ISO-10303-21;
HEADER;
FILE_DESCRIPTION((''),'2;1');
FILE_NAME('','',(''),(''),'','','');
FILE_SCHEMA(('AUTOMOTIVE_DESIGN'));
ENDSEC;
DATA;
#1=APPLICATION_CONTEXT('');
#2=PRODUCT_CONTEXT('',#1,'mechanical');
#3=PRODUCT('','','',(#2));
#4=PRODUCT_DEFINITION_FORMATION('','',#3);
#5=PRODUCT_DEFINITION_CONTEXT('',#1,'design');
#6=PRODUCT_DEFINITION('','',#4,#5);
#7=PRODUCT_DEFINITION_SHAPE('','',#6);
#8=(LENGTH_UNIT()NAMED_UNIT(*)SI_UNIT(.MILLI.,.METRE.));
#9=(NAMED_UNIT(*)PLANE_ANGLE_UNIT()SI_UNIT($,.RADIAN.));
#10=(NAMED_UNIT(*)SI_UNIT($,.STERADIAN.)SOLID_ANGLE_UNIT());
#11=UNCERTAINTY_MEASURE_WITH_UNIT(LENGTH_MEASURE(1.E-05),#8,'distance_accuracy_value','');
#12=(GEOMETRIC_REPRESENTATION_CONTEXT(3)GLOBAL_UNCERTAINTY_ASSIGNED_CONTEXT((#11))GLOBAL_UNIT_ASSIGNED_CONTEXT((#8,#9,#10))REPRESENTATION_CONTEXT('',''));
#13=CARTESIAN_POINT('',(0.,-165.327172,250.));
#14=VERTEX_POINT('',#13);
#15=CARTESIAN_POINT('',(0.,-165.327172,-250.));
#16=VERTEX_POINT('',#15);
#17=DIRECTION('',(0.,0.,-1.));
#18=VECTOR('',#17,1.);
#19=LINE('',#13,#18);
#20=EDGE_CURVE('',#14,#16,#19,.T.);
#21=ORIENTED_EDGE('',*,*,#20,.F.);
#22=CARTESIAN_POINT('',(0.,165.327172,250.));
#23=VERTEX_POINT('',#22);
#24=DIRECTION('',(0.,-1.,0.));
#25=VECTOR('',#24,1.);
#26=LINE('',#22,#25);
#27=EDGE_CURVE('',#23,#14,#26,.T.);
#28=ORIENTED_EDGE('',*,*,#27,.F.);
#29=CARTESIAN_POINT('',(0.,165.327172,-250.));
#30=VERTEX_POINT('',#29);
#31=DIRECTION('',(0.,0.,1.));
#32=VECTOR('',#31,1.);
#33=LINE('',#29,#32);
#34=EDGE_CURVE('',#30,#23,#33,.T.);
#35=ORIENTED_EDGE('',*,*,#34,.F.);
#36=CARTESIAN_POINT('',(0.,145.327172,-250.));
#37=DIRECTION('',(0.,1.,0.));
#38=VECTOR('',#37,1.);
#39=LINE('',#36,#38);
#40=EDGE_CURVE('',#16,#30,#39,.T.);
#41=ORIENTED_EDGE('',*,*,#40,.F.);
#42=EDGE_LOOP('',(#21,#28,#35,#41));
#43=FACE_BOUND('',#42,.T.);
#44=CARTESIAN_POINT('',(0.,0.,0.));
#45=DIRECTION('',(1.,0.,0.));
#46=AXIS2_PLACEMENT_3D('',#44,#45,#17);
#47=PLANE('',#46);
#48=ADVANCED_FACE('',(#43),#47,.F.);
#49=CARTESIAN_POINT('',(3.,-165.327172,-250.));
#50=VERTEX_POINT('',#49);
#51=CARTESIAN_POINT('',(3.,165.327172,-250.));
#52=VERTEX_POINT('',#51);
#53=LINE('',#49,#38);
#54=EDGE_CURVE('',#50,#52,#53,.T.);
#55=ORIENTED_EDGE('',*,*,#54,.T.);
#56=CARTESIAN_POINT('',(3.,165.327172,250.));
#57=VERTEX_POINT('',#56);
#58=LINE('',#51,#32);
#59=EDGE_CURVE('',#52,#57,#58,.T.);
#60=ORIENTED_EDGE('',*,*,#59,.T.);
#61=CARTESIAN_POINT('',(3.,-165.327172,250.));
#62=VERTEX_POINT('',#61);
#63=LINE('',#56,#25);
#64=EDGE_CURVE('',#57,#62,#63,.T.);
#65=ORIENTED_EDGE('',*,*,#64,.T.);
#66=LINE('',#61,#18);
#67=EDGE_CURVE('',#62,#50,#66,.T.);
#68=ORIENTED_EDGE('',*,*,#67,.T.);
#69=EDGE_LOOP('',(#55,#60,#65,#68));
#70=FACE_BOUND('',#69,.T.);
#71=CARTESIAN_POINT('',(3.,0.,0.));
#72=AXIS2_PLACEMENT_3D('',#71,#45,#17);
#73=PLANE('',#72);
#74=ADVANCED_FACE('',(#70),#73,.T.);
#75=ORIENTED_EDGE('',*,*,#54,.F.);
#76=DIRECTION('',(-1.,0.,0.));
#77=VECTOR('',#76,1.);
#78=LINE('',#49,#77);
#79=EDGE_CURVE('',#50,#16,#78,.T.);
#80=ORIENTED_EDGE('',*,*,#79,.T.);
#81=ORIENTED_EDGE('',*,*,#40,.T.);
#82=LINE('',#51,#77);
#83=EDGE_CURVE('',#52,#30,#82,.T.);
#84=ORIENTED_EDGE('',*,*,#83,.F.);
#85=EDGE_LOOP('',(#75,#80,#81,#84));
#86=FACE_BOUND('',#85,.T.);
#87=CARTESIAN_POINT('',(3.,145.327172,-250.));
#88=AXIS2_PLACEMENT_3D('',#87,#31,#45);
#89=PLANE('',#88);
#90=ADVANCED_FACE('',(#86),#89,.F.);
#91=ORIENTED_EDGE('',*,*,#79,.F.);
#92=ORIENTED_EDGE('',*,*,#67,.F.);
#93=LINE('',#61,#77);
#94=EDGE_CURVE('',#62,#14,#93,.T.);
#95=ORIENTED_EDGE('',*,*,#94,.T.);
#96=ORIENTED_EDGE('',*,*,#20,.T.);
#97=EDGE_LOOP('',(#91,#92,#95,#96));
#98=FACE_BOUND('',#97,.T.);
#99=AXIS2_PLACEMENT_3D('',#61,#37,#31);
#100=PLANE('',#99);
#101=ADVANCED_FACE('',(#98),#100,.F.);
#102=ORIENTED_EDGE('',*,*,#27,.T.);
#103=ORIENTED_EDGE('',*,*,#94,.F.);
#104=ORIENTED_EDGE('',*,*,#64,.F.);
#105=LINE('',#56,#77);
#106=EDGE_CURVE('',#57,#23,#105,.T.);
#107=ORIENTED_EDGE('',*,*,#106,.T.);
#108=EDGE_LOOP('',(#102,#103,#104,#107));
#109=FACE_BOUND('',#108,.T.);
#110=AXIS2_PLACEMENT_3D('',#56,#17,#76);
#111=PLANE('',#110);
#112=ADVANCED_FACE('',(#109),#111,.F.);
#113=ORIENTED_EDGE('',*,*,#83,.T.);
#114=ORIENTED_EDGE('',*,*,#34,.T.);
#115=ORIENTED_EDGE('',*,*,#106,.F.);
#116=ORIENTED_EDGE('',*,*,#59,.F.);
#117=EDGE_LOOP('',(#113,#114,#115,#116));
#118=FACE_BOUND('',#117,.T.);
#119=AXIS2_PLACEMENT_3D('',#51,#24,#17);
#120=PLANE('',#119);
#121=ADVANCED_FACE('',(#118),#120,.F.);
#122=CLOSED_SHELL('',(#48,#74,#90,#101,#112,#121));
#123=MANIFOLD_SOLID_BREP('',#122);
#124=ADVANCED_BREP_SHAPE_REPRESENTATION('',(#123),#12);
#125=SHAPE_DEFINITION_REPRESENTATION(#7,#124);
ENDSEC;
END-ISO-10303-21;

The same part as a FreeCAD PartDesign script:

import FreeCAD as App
import Part
import Sketcher

V = App.Vector

doc = App.newDocument("Part")
body = doc.addObject("PartDesign::Body", "Body")

# Sketch on YZ plane
sketch1 = body.newObject("Sketcher::SketchObject", "Sketch")
sketch1.AttachmentSupport = (doc.getObject("YZ_Plane"), [""])
sketch1.MapMode = "FlatFace"
sketch1.addGeometry(Part.LineSegment(V(165, -250, 0), V(165, 250, 0)), False)
sketch1.addGeometry(Part.LineSegment(V(165, 250, 0), V(-165, 250, 0)), False)
sketch1.addGeometry(Part.LineSegment(V(-165, 250, 0), V(-165, -250, 0)), False)
sketch1.addGeometry(Part.LineSegment(V(-165, -250, 0), V(165, -250, 0)), False)
sketch1.addConstraint(Sketcher.Constraint("Coincident", 0, 2, 1, 1))
sketch1.addConstraint(Sketcher.Constraint("Coincident", 1, 2, 2, 1))
sketch1.addConstraint(Sketcher.Constraint("Coincident", 2, 2, 3, 1))
sketch1.addConstraint(Sketcher.Constraint("Coincident", 3, 2, 0, 1))
sketch1.addConstraint(Sketcher.Constraint("Vertical", 0))
sketch1.addConstraint(Sketcher.Constraint("Horizontal", 1))
sketch1.addConstraint(Sketcher.Constraint("Vertical", 2))
sketch1.addConstraint(Sketcher.Constraint("Horizontal", 3))
sketch1.addConstraint(Sketcher.Constraint("Symmetric", 0, 2, 2, 2, -1, 1))
sketch1.addConstraint(Sketcher.Constraint("DistanceY", 0, 1, 0, 2, 500.0))
sketch1.addConstraint(Sketcher.Constraint("DistanceX", 1, 2, 1, 1, 330.654345))
pad1 = body.newObject("PartDesign::Pad", "Pad")
pad1.Profile = sketch1
pad1.Length = 3

doc.recompute()
